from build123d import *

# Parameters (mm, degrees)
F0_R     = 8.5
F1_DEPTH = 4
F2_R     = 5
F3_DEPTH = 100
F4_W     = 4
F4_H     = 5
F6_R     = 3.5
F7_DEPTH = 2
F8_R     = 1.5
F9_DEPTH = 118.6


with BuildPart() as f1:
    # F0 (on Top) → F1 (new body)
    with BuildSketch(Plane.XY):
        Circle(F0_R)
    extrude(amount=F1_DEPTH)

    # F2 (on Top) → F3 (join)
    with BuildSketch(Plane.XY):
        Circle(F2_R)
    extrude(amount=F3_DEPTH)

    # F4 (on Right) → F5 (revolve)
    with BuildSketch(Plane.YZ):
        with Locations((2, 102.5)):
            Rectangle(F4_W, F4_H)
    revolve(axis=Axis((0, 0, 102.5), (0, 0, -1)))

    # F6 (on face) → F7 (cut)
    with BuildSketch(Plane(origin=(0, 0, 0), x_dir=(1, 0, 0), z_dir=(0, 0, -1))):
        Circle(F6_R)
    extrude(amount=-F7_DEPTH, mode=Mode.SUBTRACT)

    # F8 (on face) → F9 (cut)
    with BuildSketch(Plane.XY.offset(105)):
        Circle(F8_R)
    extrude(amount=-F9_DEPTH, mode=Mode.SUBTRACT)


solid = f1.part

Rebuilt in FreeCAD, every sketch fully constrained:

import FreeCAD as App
import Part
import Sketcher

doc = App.newDocument("Part")
body = doc.addObject("PartDesign::Body", "Body")

sketch1 = body.newObject("Sketcher::SketchObject", "Sketch")
sketch1.AttachmentSupport = (doc.getObject("XY_Plane"), [""])
sketch1.MapMode = "FlatFace"
sketch1.addGeometry(Part.Circle(App.Vector(0, 0, 0), App.Vector(0, 0, 1), 8), False)
sketch1.addConstraint(Sketcher.Constraint("Coincident", 0, 3, -1, 1))
sketch1.addConstraint(Sketcher.Constraint("Diameter", 0, 17.0))
pad1 = body.newObject("PartDesign::Pad", "Pad")
pad1.Profile = sketch1
pad1.Length = 4

sketch2 = body.newObject("Sketcher::SketchObject", "Sketch001")
sketch2.AttachmentSupport = (doc.getObject("XY_Plane"), [""])
sketch2.MapMode = "FlatFace"
sketch2.addGeometry(Part.Circle(App.Vector(0, 0, 0), App.Vector(0, 0, 1), 5), False)
sketch2.addConstraint(Sketcher.Constraint("Coincident", 0, 3, -1, 1))
sketch2.addConstraint(Sketcher.Constraint("Diameter", 0, 10.0))
pad2 = body.newObject("PartDesign::Pad", "Pad001")
pad2.Profile = sketch2
pad2.Length = 100

sketch3 = body.newObject("Sketcher::SketchObject", "Sketch002")
sketch3.AttachmentSupport = (doc.getObject("YZ_Plane"), [""])
sketch3.MapMode = "FlatFace"
sketch3.addGeometry(Part.LineSegment(App.Vector(0, 105, 0), App.Vector(0, 100, 0)), False)
sketch3.addGeometry(Part.LineSegment(App.Vector(0, 100, 0), App.Vector(4, 100, 0)), False)
sketch3.addGeometry(Part.LineSegment(App.Vector(4, 100, 0), App.Vector(4, 105, 0)), False)
sketch3.addGeometry(Part.LineSegment(App.Vector(4, 105, 0), App.Vector(0, 105, 0)), False)
sketch3.addConstraint(Sketcher.Constraint("Coincident", 0, 2, 1, 1))
sketch3.addConstraint(Sketcher.Constraint("Coincident", 1, 2, 2, 1))
sketch3.addConstraint(Sketcher.Constraint("Coincident", 2, 2, 3, 1))
sketch3.addConstraint(Sketcher.Constraint("Coincident", 3, 2, 0, 1))
sketch3.addConstraint(Sketcher.Constraint("Vertical", 0))
sketch3.addConstraint(Sketcher.Constraint("Horizontal", 1))
sketch3.addConstraint(Sketcher.Constraint("Vertical", 2))
sketch3.addConstraint(Sketcher.Constraint("Horizontal", 3))
sketch3.addConstraint(Sketcher.Constraint("PointOnObject", 0, 2, -2))
sketch3.addConstraint(Sketcher.Constraint("DistanceX", 1, 1, 1, 2, 4.0))
sketch3.addConstraint(Sketcher.Constraint("DistanceY", 0, 2, 0, 1, 5.0))
sketch3.addConstraint(Sketcher.Constraint("DistanceY", -1, 1, 0, 2, 100.0))
revolution = body.newObject("PartDesign::Revolution", "Revolution")
revolution.Profile = sketch3
revolution.ReferenceAxis = (sketch3, ["V_Axis"])
revolution.Angle = 360

sketch4 = body.newObject("Sketcher::SketchObject", "Sketch003")
sketch4.AttachmentSupport = (doc.getObject("XY_Plane"), [""])
sketch4.MapMode = "FlatFace"
sketch4.addGeometry(Part.Circle(App.Vector(0, 0, 0), App.Vector(0, 0, 1), 3.5), False)
sketch4.addConstraint(Sketcher.Constraint("Coincident", 0, 3, -1, 1))
sketch4.addConstraint(Sketcher.Constraint("Diameter", 0, 7.0))
pocket1 = body.newObject("PartDesign::Pocket", "Pocket")
pocket1.Profile = sketch4
pocket1.Length = 2
pocket1.Reversed = True

sketch5 = body.newObject("Sketcher::SketchObject", "Sketch004")
sketch5.AttachmentSupport = (doc.getObject("XY_Plane"), [""])
sketch5.MapMode = "FlatFace"
sketch5.AttachmentOffset = App.Placement(App.Vector(0, 0, 105), App.Rotation())
sketch5.addGeometry(Part.Circle(App.Vector(0, 0, 0), App.Vector(0, 0, 1), 1.5), False)
sketch5.addConstraint(Sketcher.Constraint("Coincident", 0, 3, -1, 1))
sketch5.addConstraint(Sketcher.Constraint("Diameter", 0, 3.0))
pocket2 = body.newObject("PartDesign::Pocket", "Pocket001")
pocket2.Profile = sketch5
pocket2.Length = 118.6

doc.recompute()
